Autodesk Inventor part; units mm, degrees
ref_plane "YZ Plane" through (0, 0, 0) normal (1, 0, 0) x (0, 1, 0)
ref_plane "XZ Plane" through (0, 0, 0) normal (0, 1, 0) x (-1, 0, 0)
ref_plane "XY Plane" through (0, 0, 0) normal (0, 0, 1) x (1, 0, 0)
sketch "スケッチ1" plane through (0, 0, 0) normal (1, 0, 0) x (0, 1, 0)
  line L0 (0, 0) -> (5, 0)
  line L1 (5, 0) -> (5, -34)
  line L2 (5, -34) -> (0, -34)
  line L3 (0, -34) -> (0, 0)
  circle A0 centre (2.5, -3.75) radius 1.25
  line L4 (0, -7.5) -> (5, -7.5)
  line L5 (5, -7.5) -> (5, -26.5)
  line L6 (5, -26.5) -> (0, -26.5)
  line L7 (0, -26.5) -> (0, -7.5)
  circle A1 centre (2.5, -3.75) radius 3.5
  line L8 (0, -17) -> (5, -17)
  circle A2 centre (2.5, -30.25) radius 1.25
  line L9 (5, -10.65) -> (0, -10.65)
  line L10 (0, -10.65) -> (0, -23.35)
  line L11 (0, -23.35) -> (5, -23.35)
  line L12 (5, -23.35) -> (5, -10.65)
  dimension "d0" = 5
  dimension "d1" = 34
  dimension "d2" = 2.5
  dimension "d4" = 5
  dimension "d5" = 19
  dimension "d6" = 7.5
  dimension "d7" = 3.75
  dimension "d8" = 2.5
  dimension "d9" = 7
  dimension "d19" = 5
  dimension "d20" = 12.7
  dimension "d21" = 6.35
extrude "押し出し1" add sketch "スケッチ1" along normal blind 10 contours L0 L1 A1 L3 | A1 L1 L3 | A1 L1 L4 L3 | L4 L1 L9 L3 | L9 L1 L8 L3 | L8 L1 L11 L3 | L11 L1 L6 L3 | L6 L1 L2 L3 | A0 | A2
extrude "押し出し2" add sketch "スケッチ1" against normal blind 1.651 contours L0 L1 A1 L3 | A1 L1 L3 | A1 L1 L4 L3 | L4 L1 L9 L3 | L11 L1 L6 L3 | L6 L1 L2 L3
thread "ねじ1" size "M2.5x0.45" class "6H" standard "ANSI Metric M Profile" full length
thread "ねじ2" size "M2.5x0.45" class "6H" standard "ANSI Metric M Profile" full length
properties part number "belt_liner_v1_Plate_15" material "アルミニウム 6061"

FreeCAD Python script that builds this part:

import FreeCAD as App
import Part
import Sketcher

doc = App.newDocument("Part")
params = doc.addObject("Spreadsheet::Sheet", "Params")
for row, (alias, value) in enumerate([
    ("sketch1_width", "5 mm"),
    ("sketch1_height", "34 mm"),
    ("pad1_length", "10 mm"),
    ("sketch2_diameter", "2.5 mm"),
    ("sketch2_width", "5 mm"),
    ("pad2_length", "1.651 mm"),
], start=1):
    params.set(f"A{row}", alias)
    params.set(f"B{row}", "=" + value)
    params.setAlias(f"B{row}", alias)

body = doc.addObject("PartDesign::Body", "Body")

# Sketch on YZ plane
sketch1 = doc.addObject("Sketcher::SketchObject", "Sketch")
body.addObject(sketch1)
sketch1.AttachmentSupport = (doc.YZ_Plane, [""])
sketch1.MapMode = "FlatFace"
sketch1.addGeometry(Part.LineSegment(App.Vector(5, 0, 0), App.Vector(0, 0, 0)), False)
sketch1.addGeometry(Part.LineSegment(App.Vector(0, 0, 0), App.Vector(0, -34, 0)), False)
sketch1.addGeometry(Part.LineSegment(App.Vector(0, -34, 0), App.Vector(5, -34, 0)), False)
sketch1.addGeometry(Part.LineSegment(App.Vector(5, -34, 0), App.Vector(5, 0, 0)), False)
sketch1.addConstraint(Sketcher.Constraint("Coincident", 0, 2, 1, 1))
sketch1.addConstraint(Sketcher.Constraint("Coincident", 1, 2, 2, 1))
sketch1.addConstraint(Sketcher.Constraint("Coincident", 2, 2, 3, 1))
sketch1.addConstraint(Sketcher.Constraint("Coincident", 3, 2, 0, 1))
sketch1.addConstraint(Sketcher.Constraint("Horizontal", 0))
sketch1.addConstraint(Sketcher.Constraint("Vertical", 1))
sketch1.addConstraint(Sketcher.Constraint("Horizontal", 2))
sketch1.addConstraint(Sketcher.Constraint("Vertical", 3))
sketch1.addConstraint(Sketcher.Constraint("Coincident", 0, 2, -1, 1))
sketch1.addConstraint(Sketcher.Constraint("DistanceX", 0, 2, 0, 1, 5.0))
sketch1.addConstraint(Sketcher.Constraint("DistanceY", 1, 2, 1, 1, 34.0))
sketch1.setExpression("Constraints[9]", "Params.sketch1_width")
sketch1.setExpression("Constraints[10]", "Params.sketch1_height")
pad1 = doc.addObject("PartDesign::Pad", "Pad")
body.addObject(pad1)
pad1.Profile = sketch1
pad1.setExpression("Length", "Params.pad1_length")

# Sketch on YZ plane
sketch2 = doc.addObject("Sketcher::SketchObject", "Sketch001")
body.addObject(sketch2)
sketch2.AttachmentSupport = (doc.YZ_Plane, [""])
sketch2.MapMode = "FlatFace"
sketch2.addGeometry(Part.LineSegment(App.Vector(5, 0, 0), App.Vector(0, 0, 0)), False)
sketch2.addGeometry(Part.LineSegment(App.Vector(0, 0, 0), App.Vector(0, -10.7, 0)), False)
sketch2.addGeometry(Part.LineSegment(App.Vector(0, -10.7, 0), App.Vector(5, -10.7, 0)), False)
sketch2.addGeometry(Part.LineSegment(App.Vector(5, -10.7, 0), App.Vector(5, 0, 0)), False)
sketch2.addGeometry(Part.Circle(App.Vector(2.5, -3.8, 0), App.Vector(0, 0, 1), 1.2), False)
sketch2.addGeometry(Part.LineSegment(App.Vector(5, -23.4, 0), App.Vector(0, -23.4, 0)), False)
sketch2.addGeometry(Part.LineSegment(App.Vector(0, -23.4, 0), App.Vector(0, -34, 0)), False)
sketch2.addGeometry(Part.LineSegment(App.Vector(0, -34, 0), App.Vector(5, -34, 0)), False)
sketch2.addGeometry(Part.LineSegment(App.Vector(5, -34, 0), App.Vector(5, -23.4, 0)), False)
sketch2.addGeometry(Part.Circle(App.Vector(2.5, -30.2, 0), App.Vector(0, 0, 1), 1.2), False)
sketch2.addConstraint(Sketcher.Constraint("Coincident", 0, 2, 1, 1))
sketch2.addConstraint(Sketcher.Constraint("Coincident", 1, 2, 2, 1))
sketch2.addConstraint(Sketcher.Constraint("Coincident", 2, 2, 3, 1))
sketch2.addConstraint(Sketcher.Constraint("Coincident", 3, 2, 0, 1))
sketch2.addConstraint(Sketcher.Constraint("Coincident", 5, 2, 6, 1))
sketch2.addConstraint(Sketcher.Constraint("Coincident", 6, 2, 7, 1))
sketch2.addConstraint(Sketcher.Constraint("Coincident", 7, 2, 8, 1))
sketch2.addConstraint(Sketcher.Constraint("Coincident", 8, 2, 5, 1))
sketch2.addConstraint(Sketcher.Constraint("Horizontal", 0))
sketch2.addConstraint(Sketcher.Constraint("Vertical", 1))
sketch2.addConstraint(Sketcher.Constraint("Horizontal", 2))
sketch2.addConstraint(Sketcher.Constraint("Vertical", 3))
sketch2.addConstraint(Sketcher.Constraint("Horizontal", 5))
sketch2.addConstraint(Sketcher.Constraint("Vertical", 6))
sketch2.addConstraint(Sketcher.Constraint("Horizontal", 7))
sketch2.addConstraint(Sketcher.Constraint("Vertical", 8))
sketch2.addConstraint(Sketcher.Constraint("Coincident", 0, 2, -1, 1))
sketch2.addConstraint(Sketcher.Constraint("Equal", 4, 9))
sketch2.addConstraint(Sketcher.Constraint("PointOnObject", 5, 2, -2))
sketch2.addConstraint(Sketcher.Constraint("Vertical", 4, 3, 9, 3))
sketch2.addConstraint(Sketcher.Constraint("Vertical", 3, 2, 7, 2))
sketch2.addConstraint(Sketcher.Constraint("Equal", 3, 6))
sketch2.addConstraint(Sketcher.Constraint("Diameter", 4, 2.5))
sketch2.addConstraint(Sketcher.Constraint("DistanceX", 0, 2, 0, 1, 5.0))
sketch2.addConstraint(Sketcher.Constraint("DistanceY", 6, 2, -1, 1, 34.0))
sketch2.addConstraint(Sketcher.Constraint("DistanceX", -1, 1, 4, 3, 2.5))
sketch2.addConstraint(Sketcher.Constraint("DistanceY", 5, 2, 1, 2, 12.7))
sketch2.addConstraint(Sketcher.Constraint("DistanceY", 4, 3, -1, 1, 3.75))
sketch2.addConstraint(Sketcher.Constraint("DistanceY", 6, 2, 9, 3, 3.75))
sketch2.setExpression("Constraints[22]", "Params.sketch2_diameter")
sketch2.setExpression("Constraints[23]", "Params.sketch2_width")
pad2 = doc.addObject("PartDesign::Pad", "Pad001")
body.addObject(pad2)
pad2.Profile = sketch2
pad2.setExpression("Length", "Params.pad2_length")
pad2.Reversed = True

doc.recompute()
